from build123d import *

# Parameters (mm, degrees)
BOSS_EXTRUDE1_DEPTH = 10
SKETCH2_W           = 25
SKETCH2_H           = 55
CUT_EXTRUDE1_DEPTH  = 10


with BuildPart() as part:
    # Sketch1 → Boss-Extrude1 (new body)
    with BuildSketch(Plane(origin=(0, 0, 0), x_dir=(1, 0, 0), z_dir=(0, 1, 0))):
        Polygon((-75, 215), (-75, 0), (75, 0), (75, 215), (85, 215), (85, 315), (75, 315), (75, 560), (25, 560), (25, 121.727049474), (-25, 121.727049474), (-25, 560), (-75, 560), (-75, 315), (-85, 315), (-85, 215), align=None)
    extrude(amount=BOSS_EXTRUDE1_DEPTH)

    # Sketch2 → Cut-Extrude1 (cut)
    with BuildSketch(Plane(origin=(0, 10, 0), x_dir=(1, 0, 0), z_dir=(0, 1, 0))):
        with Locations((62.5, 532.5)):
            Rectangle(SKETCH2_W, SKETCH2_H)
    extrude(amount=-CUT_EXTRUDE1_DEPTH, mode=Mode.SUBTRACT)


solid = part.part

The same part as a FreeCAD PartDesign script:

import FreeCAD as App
import Part
import Sketcher
Q = App.Units.Quantity

doc = App.newDocument("Part")
body = doc.addObject("PartDesign::Body", "Body")

# Sketch on XZ plane
sketch1 = doc.addObject("Sketcher::SketchObject", "Sketch")
body.addObject(sketch1)
sketch1.AttachmentSupport = (doc.XZ_Plane, [""])
sketch1.MapMode = "FlatFace"
sketch1.addGeometry([
    Part.LineSegment(App.Vector(-75, -215, 0), App.Vector(-75, 0, 0)),  # 0
    Part.LineSegment(App.Vector(-75, 0, 0), App.Vector(75, 0, 0)),  # 1
    Part.LineSegment(App.Vector(75, 0, 0), App.Vector(75, -215, 0)),  # 2
    Part.LineSegment(App.Vector(75, -215, 0), App.Vector(85, -215, 0)),  # 3
    Part.LineSegment(App.Vector(85, -215, 0), App.Vector(85, -315, 0)),  # 4
    Part.LineSegment(App.Vector(85, -315, 0), App.Vector(75, -315, 0)),  # 5
    Part.LineSegment(App.Vector(75, -315, 0), App.Vector(75, -560, 0)),  # 6
    Part.LineSegment(App.Vector(75, -560, 0), App.Vector(25, -560, 0)),  # 7
    Part.LineSegment(App.Vector(25, -560, 0), App.Vector(25, -122, 0)),  # 8
    Part.LineSegment(App.Vector(25, -122, 0), App.Vector(-25, -122, 0)),  # 9
    Part.LineSegment(App.Vector(-25, -122, 0), App.Vector(-25, -560, 0)),  # 10
    Part.LineSegment(App.Vector(-25, -560, 0), App.Vector(-75, -560, 0)),  # 11
    Part.LineSegment(App.Vector(-75, -560, 0), App.Vector(-75, -315, 0)),  # 12
    Part.LineSegment(App.Vector(-75, -315, 0), App.Vector(-85, -315, 0)),  # 13
    Part.LineSegment(App.Vector(-85, -315, 0), App.Vector(-85, -215, 0)),  # 14
    Part.LineSegment(App.Vector(-85, -215, 0), App.Vector(-75, -215, 0)),  # 15
], False)
sketch1.addConstraint([
    Sketcher.Constraint("Coincident", 0, 2, 1, 1),
    Sketcher.Constraint("Coincident", 1, 2, 2, 1),
    Sketcher.Constraint("Coincident", 2, 2, 3, 1),
    Sketcher.Constraint("Coincident", 3, 2, 4, 1),
    Sketcher.Constraint("Coincident", 4, 2, 5, 1),
    Sketcher.Constraint("Coincident", 5, 2, 6, 1),
    Sketcher.Constraint("Coincident", 6, 2, 7, 1),
    Sketcher.Constraint("Coincident", 7, 2, 8, 1),
    Sketcher.Constraint("Coincident", 8, 2, 9, 1),
    Sketcher.Constraint("Coincident", 9, 2, 10, 1),
    Sketcher.Constraint("Coincident", 10, 2, 11, 1),
    Sketcher.Constraint("Coincident", 11, 2, 12, 1),
    Sketcher.Constraint("Coincident", 12, 2, 13, 1),
    Sketcher.Constraint("Coincident", 13, 2, 14, 1),
    Sketcher.Constraint("Coincident", 14, 2, 15, 1),
    Sketcher.Constraint("Coincident", 15, 2, 0, 1),
    Sketcher.Constraint("Vertical", 0),
    Sketcher.Constraint("Horizontal", 1),
    Sketcher.Constraint("Vertical", 2),
    Sketcher.Constraint("Horizontal", 3),
    Sketcher.Constraint("Vertical", 4),
    Sketcher.Constraint("Horizontal", 5),
    Sketcher.Constraint("Vertical", 6),
    Sketcher.Constraint("Horizontal", 7),
    Sketcher.Constraint("Vertical", 8),
    Sketcher.Constraint("Horizontal", 9),
    Sketcher.Constraint("Vertical", 10),
    Sketcher.Constraint("Horizontal", 11),
    Sketcher.Constraint("Vertical", 12),
    Sketcher.Constraint("Horizontal", 13),
    Sketcher.Constraint("Vertical", 14),
    Sketcher.Constraint("Horizontal", 15),
    Sketcher.Constraint("Symmetric", 0, 2, 1, 2, -1, 1),
    Sketcher.Constraint("Symmetric", 7, 2, 10, 2, -2),
    Sketcher.Constraint("Symmetric", 5, 2, 12, 2, -2),
    Sketcher.Constraint("Symmetric", 3, 2, 14, 2, -2),
    Sketcher.Constraint("Vertical", 2, 2, 5, 2),
    Sketcher.Constraint("Equal", 7, 9),
    Sketcher.Constraint("DistanceX", 1, 1, 1, 2, Q("150 mm")),
    Sketcher.Constraint("DistanceX", 3, 1, 3, 2, Q("10 mm")),
    Sketcher.Constraint("DistanceY", 0, 1, 0, 2, Q("215 mm")),
    Sketcher.Constraint("DistanceY", 4, 2, 4, 1, Q("100 mm")),
    Sketcher.Constraint("DistanceY", 6, 2, 6, 1, Q("245 mm")),
    Sketcher.Constraint("DistanceY", 8, 1, 8, 2, Q("438.272951 mm")),
])
pad1 = doc.addObject("PartDesign::Pad", "Pad")
body.addObject(pad1)
pad1.Profile = sketch1
pad1.Length = 10
pad1.Reversed = True

# Sketch on XZ plane
sketch2 = doc.addObject("Sketcher::SketchObject", "Sketch001")
body.addObject(sketch2)
sketch2.AttachmentSupport = (doc.XZ_Plane, [""])
sketch2.MapMode = "FlatFace"
sketch2.AttachmentOffset = App.Placement(App.Vector(0, 0, -10), App.Rotation())
sketch2.addGeometry([
    Part.LineSegment(App.Vector(50, -560, 0), App.Vector(50, -505, 0)),
    Part.LineSegment(App.Vector(50, -505, 0), App.Vector(75, -505, 0)),
    Part.LineSegment(App.Vector(75, -505, 0), App.Vector(75, -560, 0)),
    Part.LineSegment(App.Vector(75, -560, 0), App.Vector(50, -560, 0)),
], False)
sketch2.addConstraint([
    Sketcher.Constraint("Coincident", 0, 2, 1, 1),
    Sketcher.Constraint("Coincident", 1, 2, 2, 1),
    Sketcher.Constraint("Coincident", 2, 2, 3, 1),
    Sketcher.Constraint("Coincident", 3, 2, 0, 1),
    Sketcher.Constraint("Vertical", 0),
    Sketcher.Constraint("Horizontal", 1),
    Sketcher.Constraint("Vertical", 2),
    Sketcher.Constraint("Horizontal", 3),
    Sketcher.Constraint("DistanceX", 1, 1, 1, 2, Q("25 mm")),
    Sketcher.Constraint("DistanceY", 0, 1, 0, 2, Q("55 mm")),
    Sketcher.Constraint("DistanceX", -1, 1, 0, 2, Q("50 mm")),
    Sketcher.Constraint("DistanceY", 0, 2, -1, 1, Q("505 mm")),
])
pocket1 = doc.addObject("PartDesign::Pocket", "Pocket")
body.addObject(pocket1)
pocket1.Profile = sketch2
pocket1.Length = 10
pocket1.Reversed = True

doc.recompute()
